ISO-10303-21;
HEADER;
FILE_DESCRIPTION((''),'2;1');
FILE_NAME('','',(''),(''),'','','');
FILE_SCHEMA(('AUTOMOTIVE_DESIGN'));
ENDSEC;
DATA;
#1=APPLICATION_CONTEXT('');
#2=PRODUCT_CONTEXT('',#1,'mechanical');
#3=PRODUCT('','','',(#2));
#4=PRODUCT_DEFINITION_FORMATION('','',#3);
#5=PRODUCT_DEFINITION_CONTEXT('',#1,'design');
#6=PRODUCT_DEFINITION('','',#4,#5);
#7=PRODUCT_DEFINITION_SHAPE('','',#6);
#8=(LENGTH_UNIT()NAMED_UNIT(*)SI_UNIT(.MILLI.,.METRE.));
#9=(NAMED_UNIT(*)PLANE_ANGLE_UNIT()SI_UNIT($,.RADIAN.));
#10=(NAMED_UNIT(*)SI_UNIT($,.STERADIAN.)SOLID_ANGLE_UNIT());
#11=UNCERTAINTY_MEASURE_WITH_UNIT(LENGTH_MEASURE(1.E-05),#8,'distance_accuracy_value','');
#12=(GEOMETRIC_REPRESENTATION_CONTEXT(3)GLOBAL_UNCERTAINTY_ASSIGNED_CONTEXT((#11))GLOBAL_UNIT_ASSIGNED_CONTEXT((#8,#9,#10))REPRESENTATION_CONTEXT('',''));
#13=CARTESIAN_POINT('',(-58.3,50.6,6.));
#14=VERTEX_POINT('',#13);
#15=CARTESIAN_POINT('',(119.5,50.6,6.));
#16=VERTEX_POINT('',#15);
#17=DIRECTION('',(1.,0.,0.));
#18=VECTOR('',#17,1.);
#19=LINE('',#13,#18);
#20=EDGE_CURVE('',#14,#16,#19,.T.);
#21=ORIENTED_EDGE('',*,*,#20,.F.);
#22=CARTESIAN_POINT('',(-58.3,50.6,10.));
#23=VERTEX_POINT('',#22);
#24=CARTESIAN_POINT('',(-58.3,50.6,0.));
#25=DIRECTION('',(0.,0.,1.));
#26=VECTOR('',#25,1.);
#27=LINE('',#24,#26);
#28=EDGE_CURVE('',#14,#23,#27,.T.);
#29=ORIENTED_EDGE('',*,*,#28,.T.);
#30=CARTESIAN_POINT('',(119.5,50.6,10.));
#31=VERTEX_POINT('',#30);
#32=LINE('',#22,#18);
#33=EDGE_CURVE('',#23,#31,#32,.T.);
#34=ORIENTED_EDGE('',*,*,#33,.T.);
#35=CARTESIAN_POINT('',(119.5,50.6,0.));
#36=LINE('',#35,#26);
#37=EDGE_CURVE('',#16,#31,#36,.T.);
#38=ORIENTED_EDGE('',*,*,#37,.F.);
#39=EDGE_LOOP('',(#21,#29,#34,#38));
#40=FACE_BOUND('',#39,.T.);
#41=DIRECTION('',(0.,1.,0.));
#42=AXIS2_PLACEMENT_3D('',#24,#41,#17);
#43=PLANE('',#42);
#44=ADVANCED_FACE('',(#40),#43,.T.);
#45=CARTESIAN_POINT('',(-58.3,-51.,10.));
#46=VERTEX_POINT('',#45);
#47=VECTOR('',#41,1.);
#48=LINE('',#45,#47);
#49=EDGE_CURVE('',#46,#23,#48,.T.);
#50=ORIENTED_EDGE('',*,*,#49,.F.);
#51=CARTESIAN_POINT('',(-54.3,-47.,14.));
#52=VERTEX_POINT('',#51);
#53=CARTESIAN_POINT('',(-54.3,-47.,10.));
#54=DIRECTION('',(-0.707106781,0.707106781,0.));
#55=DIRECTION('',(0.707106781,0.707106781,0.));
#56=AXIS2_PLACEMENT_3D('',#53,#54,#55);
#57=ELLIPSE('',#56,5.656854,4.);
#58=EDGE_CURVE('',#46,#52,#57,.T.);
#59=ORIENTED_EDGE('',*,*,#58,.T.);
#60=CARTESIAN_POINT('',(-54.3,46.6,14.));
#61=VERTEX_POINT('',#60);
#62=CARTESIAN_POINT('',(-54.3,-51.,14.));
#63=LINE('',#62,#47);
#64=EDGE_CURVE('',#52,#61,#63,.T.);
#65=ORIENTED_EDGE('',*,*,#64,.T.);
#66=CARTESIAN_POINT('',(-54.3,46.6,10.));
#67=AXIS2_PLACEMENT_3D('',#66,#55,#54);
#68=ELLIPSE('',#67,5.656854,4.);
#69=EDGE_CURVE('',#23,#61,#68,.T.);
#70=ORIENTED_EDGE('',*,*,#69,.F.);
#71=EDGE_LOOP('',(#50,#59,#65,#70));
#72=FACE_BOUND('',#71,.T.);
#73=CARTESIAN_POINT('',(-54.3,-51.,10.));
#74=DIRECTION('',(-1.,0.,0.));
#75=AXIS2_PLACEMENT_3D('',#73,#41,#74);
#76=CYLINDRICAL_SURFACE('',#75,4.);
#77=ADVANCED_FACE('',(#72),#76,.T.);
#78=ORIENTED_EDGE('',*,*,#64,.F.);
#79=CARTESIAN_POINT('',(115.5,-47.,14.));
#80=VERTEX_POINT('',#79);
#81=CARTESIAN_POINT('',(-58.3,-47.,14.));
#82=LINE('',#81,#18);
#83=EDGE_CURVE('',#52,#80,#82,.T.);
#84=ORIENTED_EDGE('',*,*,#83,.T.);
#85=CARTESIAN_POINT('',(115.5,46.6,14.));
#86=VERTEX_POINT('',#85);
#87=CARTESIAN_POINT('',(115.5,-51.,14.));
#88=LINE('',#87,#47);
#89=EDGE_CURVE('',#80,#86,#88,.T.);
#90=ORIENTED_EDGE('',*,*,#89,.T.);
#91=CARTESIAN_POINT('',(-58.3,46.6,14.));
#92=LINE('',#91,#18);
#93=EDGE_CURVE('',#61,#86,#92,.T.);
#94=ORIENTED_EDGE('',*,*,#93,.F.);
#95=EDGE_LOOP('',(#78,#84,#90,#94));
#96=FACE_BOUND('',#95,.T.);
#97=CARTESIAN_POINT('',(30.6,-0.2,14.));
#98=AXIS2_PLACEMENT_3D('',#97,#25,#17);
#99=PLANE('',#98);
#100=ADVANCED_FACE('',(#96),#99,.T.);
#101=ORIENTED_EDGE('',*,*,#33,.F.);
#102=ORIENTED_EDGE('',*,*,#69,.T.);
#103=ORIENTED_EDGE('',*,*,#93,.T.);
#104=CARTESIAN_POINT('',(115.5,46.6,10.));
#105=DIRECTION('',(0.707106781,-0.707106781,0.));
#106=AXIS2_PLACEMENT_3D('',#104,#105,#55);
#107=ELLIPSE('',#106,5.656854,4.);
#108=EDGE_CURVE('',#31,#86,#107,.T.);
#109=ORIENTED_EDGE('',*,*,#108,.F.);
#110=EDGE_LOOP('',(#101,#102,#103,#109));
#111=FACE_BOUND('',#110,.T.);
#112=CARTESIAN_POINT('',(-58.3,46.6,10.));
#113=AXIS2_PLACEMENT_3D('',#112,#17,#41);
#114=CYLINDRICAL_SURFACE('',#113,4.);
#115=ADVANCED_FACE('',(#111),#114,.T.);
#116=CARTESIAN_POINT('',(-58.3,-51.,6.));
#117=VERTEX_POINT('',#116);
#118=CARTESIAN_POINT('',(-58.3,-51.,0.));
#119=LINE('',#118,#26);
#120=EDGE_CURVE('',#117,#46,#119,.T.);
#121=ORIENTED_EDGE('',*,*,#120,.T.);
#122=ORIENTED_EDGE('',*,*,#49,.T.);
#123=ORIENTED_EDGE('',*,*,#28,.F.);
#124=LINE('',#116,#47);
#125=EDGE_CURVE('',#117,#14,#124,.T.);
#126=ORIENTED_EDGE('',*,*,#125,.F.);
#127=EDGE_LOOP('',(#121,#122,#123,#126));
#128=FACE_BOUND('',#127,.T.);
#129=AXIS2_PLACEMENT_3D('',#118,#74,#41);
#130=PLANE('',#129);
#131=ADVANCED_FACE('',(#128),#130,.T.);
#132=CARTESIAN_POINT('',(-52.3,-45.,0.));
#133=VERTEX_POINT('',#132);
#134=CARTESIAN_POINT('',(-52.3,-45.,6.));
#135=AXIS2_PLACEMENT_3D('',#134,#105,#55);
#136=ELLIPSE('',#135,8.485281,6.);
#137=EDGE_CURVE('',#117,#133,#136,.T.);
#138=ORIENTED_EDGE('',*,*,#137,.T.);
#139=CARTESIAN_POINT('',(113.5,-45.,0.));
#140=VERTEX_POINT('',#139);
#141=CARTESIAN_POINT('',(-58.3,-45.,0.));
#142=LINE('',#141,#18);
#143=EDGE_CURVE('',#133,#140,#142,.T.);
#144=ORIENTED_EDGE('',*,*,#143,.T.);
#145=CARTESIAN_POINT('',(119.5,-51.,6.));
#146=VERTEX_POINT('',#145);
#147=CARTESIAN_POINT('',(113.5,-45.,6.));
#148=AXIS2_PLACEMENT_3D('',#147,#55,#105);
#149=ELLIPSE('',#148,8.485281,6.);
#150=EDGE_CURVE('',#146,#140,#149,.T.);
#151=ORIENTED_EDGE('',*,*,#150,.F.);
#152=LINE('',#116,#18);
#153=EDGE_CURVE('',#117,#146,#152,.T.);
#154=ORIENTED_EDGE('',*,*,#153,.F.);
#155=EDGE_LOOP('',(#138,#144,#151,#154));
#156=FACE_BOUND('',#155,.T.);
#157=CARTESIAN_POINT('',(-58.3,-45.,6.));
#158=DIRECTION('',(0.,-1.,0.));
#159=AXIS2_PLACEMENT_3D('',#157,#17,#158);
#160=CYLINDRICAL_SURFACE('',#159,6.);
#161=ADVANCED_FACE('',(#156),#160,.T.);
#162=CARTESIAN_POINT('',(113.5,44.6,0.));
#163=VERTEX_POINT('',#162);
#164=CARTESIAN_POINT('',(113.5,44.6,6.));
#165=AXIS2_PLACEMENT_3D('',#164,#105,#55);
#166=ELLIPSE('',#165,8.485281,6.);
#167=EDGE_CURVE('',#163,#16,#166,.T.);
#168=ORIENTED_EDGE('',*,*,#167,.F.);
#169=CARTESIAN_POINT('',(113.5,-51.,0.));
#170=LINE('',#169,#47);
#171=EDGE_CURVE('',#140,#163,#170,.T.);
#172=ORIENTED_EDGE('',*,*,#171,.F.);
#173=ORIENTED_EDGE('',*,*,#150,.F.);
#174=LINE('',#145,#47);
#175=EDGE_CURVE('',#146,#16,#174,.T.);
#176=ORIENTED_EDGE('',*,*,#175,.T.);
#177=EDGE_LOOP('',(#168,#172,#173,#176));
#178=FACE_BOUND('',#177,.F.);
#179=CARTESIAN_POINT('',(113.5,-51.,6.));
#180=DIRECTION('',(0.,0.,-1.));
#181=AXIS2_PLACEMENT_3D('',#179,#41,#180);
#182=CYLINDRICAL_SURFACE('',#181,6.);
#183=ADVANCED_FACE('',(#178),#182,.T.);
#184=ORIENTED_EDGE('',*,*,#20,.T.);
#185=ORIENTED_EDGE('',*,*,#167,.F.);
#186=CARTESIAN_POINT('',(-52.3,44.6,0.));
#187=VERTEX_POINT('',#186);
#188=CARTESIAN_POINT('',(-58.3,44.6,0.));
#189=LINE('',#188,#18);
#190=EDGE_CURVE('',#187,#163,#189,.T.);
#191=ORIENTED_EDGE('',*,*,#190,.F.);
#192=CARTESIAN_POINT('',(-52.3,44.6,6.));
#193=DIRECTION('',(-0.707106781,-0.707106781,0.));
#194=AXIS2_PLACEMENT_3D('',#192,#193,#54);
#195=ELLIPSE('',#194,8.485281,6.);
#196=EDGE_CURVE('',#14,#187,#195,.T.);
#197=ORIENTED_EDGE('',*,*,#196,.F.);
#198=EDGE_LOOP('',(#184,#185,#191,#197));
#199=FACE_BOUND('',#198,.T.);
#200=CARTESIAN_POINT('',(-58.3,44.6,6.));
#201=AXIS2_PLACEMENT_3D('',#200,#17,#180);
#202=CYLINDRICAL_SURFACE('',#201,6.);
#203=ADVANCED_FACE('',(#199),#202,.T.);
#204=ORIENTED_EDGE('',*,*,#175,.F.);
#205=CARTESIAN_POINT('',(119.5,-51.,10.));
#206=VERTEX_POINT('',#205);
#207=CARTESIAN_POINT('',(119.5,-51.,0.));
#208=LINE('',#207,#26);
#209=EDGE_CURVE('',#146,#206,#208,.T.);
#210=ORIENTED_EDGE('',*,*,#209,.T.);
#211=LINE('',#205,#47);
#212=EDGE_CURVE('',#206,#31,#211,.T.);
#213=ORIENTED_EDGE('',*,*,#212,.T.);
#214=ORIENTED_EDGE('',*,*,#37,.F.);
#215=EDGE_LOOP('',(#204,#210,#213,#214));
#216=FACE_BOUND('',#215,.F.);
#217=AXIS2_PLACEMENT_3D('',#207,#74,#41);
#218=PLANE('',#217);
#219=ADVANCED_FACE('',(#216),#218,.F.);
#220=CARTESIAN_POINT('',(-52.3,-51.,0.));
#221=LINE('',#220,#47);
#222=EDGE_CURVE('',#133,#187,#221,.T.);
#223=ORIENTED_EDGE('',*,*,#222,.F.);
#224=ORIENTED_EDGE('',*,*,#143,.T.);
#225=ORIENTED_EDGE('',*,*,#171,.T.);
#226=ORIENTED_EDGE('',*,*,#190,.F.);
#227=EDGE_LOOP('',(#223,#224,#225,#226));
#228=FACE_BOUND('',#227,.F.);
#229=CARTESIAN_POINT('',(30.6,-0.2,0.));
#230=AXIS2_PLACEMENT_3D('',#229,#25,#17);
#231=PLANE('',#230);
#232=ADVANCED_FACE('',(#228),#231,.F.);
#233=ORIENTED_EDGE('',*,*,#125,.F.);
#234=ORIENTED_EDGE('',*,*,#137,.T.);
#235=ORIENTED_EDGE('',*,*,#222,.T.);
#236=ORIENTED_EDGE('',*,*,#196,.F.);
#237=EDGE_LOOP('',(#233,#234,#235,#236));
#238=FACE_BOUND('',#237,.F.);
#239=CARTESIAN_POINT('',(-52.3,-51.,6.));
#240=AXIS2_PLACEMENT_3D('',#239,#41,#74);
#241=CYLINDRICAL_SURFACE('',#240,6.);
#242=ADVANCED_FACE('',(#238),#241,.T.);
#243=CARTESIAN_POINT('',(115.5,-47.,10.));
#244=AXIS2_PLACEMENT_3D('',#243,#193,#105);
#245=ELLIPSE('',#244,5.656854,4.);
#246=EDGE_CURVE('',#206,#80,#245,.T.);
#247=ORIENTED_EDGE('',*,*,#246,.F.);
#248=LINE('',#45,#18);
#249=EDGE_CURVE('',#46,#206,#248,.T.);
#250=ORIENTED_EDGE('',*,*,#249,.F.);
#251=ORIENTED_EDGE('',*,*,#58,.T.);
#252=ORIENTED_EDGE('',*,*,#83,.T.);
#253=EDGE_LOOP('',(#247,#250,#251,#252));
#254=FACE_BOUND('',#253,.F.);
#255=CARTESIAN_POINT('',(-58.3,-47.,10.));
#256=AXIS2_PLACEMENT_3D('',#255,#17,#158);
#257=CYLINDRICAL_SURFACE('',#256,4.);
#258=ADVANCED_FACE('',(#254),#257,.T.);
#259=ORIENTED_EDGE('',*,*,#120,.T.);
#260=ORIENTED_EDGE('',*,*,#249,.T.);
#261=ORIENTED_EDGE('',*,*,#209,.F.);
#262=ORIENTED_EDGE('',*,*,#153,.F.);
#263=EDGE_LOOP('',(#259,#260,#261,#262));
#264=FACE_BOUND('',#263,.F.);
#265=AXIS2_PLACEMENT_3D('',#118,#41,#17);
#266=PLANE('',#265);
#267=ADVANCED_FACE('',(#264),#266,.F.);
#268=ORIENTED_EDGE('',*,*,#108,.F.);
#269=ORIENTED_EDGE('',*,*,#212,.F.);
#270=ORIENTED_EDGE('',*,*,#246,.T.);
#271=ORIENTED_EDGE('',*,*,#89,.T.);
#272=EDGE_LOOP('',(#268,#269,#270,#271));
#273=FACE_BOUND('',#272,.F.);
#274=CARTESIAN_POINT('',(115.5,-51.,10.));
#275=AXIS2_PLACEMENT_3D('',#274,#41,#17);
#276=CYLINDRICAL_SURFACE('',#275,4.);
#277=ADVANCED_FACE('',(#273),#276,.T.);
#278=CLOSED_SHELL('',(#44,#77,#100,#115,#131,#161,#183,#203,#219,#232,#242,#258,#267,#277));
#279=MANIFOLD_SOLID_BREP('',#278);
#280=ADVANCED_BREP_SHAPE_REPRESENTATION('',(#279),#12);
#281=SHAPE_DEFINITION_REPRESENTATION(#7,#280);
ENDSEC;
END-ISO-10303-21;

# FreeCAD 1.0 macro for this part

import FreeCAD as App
import Part
import Sketcher

V = App.Vector


def edges_at(feature, points):
    """Names of the edges that pass closest to the given points."""
    edges = feature.Shape.Edges
    near = lambda p: min(range(len(edges)), key=lambda i: edges[i].distToShape(Part.Vertex(*p))[0])
    return sorted({f"Edge{near(p) + 1}" for p in points})


def add_polygon(sketch, points):
    """Adds a closed chain of lines whose ends are joined by coincident constraints."""
    first, n = sketch.GeometryCount, len(points)
    for a, b in zip(points, points[1:] + points[:1]):
        sketch.addGeometry(Part.LineSegment(App.Vector(*a, 0), App.Vector(*b, 0)), False)
    for i in range(n):
        sketch.addConstraint(Sketcher.Constraint("Coincident", first + i, 2, first + (i + 1) % n, 1))

doc = App.newDocument("Part")
body = doc.addObject("PartDesign::Body", "Body")

sketch1 = body.newObject("Sketcher::SketchObject", "Sketch")
sketch1.AttachmentSupport = (doc.getObject("XY_Plane"), [""])
sketch1.MapMode = "FlatFace"
add_polygon(sketch1, [(-58, 51), (-58, -51), (120, -51), (120, 51)])
sketch1.addConstraint(Sketcher.Constraint("Vertical", 0))
sketch1.addConstraint(Sketcher.Constraint("Horizontal", 1))
sketch1.addConstraint(Sketcher.Constraint("Vertical", 2))
sketch1.addConstraint(Sketcher.Constraint("Horizontal", 3))
sketch1.addConstraint(Sketcher.Constraint("DistanceX", 1, 1, 1, 2, 177.8))
sketch1.addConstraint(Sketcher.Constraint("DistanceY", 0, 2, 0, 1, 101.6))
sketch1.addConstraint(Sketcher.Constraint("DistanceY", 0, 2, -1, 1, 51.0))
sketch1.addConstraint(Sketcher.Constraint("DistanceX", 0, 2, -1, 1, 58.3))
pad1 = body.newObject("PartDesign::Pad", "Pad")
pad1.Profile = sketch1
pad1.Length = 14
doc.recompute()

fillet = body.newObject("PartDesign::Fillet", "Fillet")
fillet.Base = (pad1, edges_at(pad1, [
    (-58.3, -0.2, 14),
    (30.6, 50.6, 14),
    (30.6, -51, 14),
    (119.5, -0.2, 14),
]))
fillet.Radius = 4
doc.recompute()

fillet2 = body.newObject("PartDesign::Fillet", "Fillet001")
fillet2.Base = (fillet, edges_at(fillet, [
    (-58.3, -0.2, 0),
    (30.6, 50.6, 0),
    (30.6, -51, 0),
    (119.5, -0.2, 0),
]))
fillet2.Radius = 6

doc.recompute()
